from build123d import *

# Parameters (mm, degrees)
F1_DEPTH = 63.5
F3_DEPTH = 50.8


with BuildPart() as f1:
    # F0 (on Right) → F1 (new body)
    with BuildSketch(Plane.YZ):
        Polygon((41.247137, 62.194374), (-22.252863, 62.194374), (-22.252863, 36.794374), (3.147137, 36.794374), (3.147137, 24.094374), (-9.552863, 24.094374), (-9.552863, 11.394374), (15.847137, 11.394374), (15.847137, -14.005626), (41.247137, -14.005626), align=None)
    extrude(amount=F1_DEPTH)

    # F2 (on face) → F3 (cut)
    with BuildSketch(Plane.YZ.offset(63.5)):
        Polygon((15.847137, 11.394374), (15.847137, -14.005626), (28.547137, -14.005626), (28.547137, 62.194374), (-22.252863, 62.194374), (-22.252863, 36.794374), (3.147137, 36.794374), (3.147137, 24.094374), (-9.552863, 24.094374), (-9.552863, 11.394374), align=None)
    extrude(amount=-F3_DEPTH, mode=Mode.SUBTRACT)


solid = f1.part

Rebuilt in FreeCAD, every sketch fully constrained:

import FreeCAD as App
import Part
import Sketcher
Q = App.Units.Quantity

doc = App.newDocument("Part")
params = doc.addObject("Spreadsheet::Sheet", "Params")
for row, (alias, value) in enumerate([
    ("sketch1_width", "1 in"),
    ("sketch1_height", "3 in"),
    ("pad1_length", "2.5 in"),
    ("sketch2_width", "2 in"),
    ("sketch2_height", "3 in"),
    ("pocket1_length", "2 in"),
], start=1):
    params.set(f"A{row}", alias)
    params.set(f"B{row}", "=" + value)
    params.setAlias(f"B{row}", alias)

body = doc.addObject("PartDesign::Body", "Body")

# Sketch on YZ plane
sketch1 = body.newObject("Sketcher::SketchObject", "Sketch")
sketch1.AttachmentSupport = (doc.getObject("YZ_Plane"), [""])
sketch1.MapMode = "FlatFace"
sketch1.addGeometry([
    Part.LineSegment(App.Vector(41, 62, 0), App.Vector(-22, 62, 0)),  # 0
    Part.LineSegment(App.Vector(-22, 62, 0), App.Vector(-22, 37, 0)),  # 1
    Part.LineSegment(App.Vector(-22, 37, 0), App.Vector(3, 37, 0)),  # 2
    Part.LineSegment(App.Vector(3, 37, 0), App.Vector(3, 24, 0)),  # 3
    Part.LineSegment(App.Vector(3, 24, 0), App.Vector(-10, 24, 0)),  # 4
    Part.LineSegment(App.Vector(-10, 24, 0), App.Vector(-10, 11, 0)),  # 5
    Part.LineSegment(App.Vector(-10, 11, 0), App.Vector(16, 11, 0)),  # 6
    Part.LineSegment(App.Vector(16, 11, 0), App.Vector(16, -14, 0)),  # 7
    Part.LineSegment(App.Vector(16, -14, 0), App.Vector(41, -14, 0)),  # 8
    Part.LineSegment(App.Vector(41, -14, 0), App.Vector(41, 62, 0)),  # 9
], False)
sketch1.addConstraint([
    Sketcher.Constraint("Coincident", 0, 2, 1, 1),
    Sketcher.Constraint("Coincident", 1, 2, 2, 1),
    Sketcher.Constraint("Coincident", 2, 2, 3, 1),
    Sketcher.Constraint("Coincident", 3, 2, 4, 1),
    Sketcher.Constraint("Coincident", 4, 2, 5, 1),
    Sketcher.Constraint("Coincident", 5, 2, 6, 1),
    Sketcher.Constraint("Coincident", 6, 2, 7, 1),
    Sketcher.Constraint("Coincident", 7, 2, 8, 1),
    Sketcher.Constraint("Coincident", 8, 2, 9, 1),
    Sketcher.Constraint("Coincident", 9, 2, 0, 1),
    Sketcher.Constraint("Horizontal", 0),
    Sketcher.Constraint("Vertical", 1),
    Sketcher.Constraint("Horizontal", 2),
    Sketcher.Constraint("Vertical", 3),
    Sketcher.Constraint("Horizontal", 4),
    Sketcher.Constraint("Vertical", 5),
    Sketcher.Constraint("Horizontal", 6),
    Sketcher.Constraint("Vertical", 7),
    Sketcher.Constraint("Horizontal", 8),
    Sketcher.Constraint("Vertical", 9),
    Sketcher.Constraint("Equal", 2, 6),
    Sketcher.Constraint("Equal", 6, 8),
    Sketcher.Constraint("Equal", 8, 1),
    Sketcher.Constraint("Equal", 4, 3),
    Sketcher.Constraint("Equal", 3, 5),
    Sketcher.Constraint("Equal", 1, 7),
    Sketcher.Constraint("DistanceX", 2, 1, 2, 2, Q("1 in")),
    Sketcher.Constraint("DistanceY", 9, 1, 9, 2, Q("3 in")),
    Sketcher.Constraint("DistanceX", 0, 2, -1, 1, 22.252863),
    Sketcher.Constraint("DistanceY", -1, 1, 0, 2, 62.194374),
])
sketch1.setExpression("Constraints[26]", "Params.sketch1_width")
sketch1.setExpression("Constraints[27]", "Params.sketch1_height")
pad1 = body.newObject("PartDesign::Pad", "Pad")
pad1.Profile = sketch1
pad1.setExpression("Length", "Params.pad1_length")

# Sketch on YZ plane
sketch2 = body.newObject("Sketcher::SketchObject", "Sketch001")
sketch2.AttachmentSupport = (doc.getObject("YZ_Plane"), [""])
sketch2.MapMode = "FlatFace"
sketch2.AttachmentOffset = App.Placement(App.Vector(0, 0, 2.5 * 25.4), App.Rotation())
sketch2.addGeometry([
    Part.LineSegment(App.Vector(16, 11, 0), App.Vector(16, -14, 0)),  # 0
    Part.LineSegment(App.Vector(16, -14, 0), App.Vector(29, -14, 0)),  # 1
    Part.LineSegment(App.Vector(29, -14, 0), App.Vector(29, 62, 0)),  # 2
    Part.LineSegment(App.Vector(29, 62, 0), App.Vector(-22, 62, 0)),  # 3
    Part.LineSegment(App.Vector(-22, 62, 0), App.Vector(-22, 37, 0)),  # 4
    Part.LineSegment(App.Vector(-22, 37, 0), App.Vector(3, 37, 0)),  # 5
    Part.LineSegment(App.Vector(3, 37, 0), App.Vector(3, 24, 0)),  # 6
    Part.LineSegment(App.Vector(3, 24, 0), App.Vector(-10, 24, 0)),  # 7
    Part.LineSegment(App.Vector(-10, 24, 0), App.Vector(-10, 11, 0)),  # 8
    Part.LineSegment(App.Vector(-10, 11, 0), App.Vector(16, 11, 0)),  # 9
], False)
sketch2.addConstraint([
    Sketcher.Constraint("Coincident", 0, 2, 1, 1),
    Sketcher.Constraint("Coincident", 1, 2, 2, 1),
    Sketcher.Constraint("Coincident", 2, 2, 3, 1),
    Sketcher.Constraint("Coincident", 3, 2, 4, 1),
    Sketcher.Constraint("Coincident", 4, 2, 5, 1),
    Sketcher.Constraint("Coincident", 5, 2, 6, 1),
    Sketcher.Constraint("Coincident", 6, 2, 7, 1),
    Sketcher.Constraint("Coincident", 7, 2, 8, 1),
    Sketcher.Constraint("Coincident", 8, 2, 9, 1),
    Sketcher.Constraint("Coincident", 9, 2, 0, 1),
    Sketcher.Constraint("Vertical", 0),
    Sketcher.Constraint("Horizontal", 1),
    Sketcher.Constraint("Vertical", 2),
    Sketcher.Constraint("Horizontal", 3),
    Sketcher.Constraint("Vertical", 4),
    Sketcher.Constraint("Horizontal", 5),
    Sketcher.Constraint("Vertical", 6),
    Sketcher.Constraint("Horizontal", 7),
    Sketcher.Constraint("Vertical", 8),
    Sketcher.Constraint("Horizontal", 9),
    Sketcher.Constraint("Equal", 1, 7),
    Sketcher.Constraint("Equal", 5, 9),
    Sketcher.Constraint("Equal", 9, 0),
    Sketcher.Constraint("Equal", 0, 4),
    Sketcher.Constraint("Equal", 7, 6),
    Sketcher.Constraint("Equal", 6, 8),
    Sketcher.Constraint("DistanceX", 3, 2, 3, 1, Q("2 in")),
    Sketcher.Constraint("DistanceY", 2, 1, 2, 2, Q("3 in")),
    Sketcher.Constraint("DistanceX", -1, 1, 0, 2, 15.847137),
    Sketcher.Constraint("DistanceY", 0, 2, -1, 1, 14.005626),
])
sketch2.setExpression("Constraints[26]", "Params.sketch2_width")
sketch2.setExpression("Constraints[27]", "Params.sketch2_height")
pocket1 = body.newObject("PartDesign::Pocket", "Pocket")
pocket1.Profile = sketch2
pocket1.setExpression("Length", "Params.pocket1_length")

doc.recompute()
